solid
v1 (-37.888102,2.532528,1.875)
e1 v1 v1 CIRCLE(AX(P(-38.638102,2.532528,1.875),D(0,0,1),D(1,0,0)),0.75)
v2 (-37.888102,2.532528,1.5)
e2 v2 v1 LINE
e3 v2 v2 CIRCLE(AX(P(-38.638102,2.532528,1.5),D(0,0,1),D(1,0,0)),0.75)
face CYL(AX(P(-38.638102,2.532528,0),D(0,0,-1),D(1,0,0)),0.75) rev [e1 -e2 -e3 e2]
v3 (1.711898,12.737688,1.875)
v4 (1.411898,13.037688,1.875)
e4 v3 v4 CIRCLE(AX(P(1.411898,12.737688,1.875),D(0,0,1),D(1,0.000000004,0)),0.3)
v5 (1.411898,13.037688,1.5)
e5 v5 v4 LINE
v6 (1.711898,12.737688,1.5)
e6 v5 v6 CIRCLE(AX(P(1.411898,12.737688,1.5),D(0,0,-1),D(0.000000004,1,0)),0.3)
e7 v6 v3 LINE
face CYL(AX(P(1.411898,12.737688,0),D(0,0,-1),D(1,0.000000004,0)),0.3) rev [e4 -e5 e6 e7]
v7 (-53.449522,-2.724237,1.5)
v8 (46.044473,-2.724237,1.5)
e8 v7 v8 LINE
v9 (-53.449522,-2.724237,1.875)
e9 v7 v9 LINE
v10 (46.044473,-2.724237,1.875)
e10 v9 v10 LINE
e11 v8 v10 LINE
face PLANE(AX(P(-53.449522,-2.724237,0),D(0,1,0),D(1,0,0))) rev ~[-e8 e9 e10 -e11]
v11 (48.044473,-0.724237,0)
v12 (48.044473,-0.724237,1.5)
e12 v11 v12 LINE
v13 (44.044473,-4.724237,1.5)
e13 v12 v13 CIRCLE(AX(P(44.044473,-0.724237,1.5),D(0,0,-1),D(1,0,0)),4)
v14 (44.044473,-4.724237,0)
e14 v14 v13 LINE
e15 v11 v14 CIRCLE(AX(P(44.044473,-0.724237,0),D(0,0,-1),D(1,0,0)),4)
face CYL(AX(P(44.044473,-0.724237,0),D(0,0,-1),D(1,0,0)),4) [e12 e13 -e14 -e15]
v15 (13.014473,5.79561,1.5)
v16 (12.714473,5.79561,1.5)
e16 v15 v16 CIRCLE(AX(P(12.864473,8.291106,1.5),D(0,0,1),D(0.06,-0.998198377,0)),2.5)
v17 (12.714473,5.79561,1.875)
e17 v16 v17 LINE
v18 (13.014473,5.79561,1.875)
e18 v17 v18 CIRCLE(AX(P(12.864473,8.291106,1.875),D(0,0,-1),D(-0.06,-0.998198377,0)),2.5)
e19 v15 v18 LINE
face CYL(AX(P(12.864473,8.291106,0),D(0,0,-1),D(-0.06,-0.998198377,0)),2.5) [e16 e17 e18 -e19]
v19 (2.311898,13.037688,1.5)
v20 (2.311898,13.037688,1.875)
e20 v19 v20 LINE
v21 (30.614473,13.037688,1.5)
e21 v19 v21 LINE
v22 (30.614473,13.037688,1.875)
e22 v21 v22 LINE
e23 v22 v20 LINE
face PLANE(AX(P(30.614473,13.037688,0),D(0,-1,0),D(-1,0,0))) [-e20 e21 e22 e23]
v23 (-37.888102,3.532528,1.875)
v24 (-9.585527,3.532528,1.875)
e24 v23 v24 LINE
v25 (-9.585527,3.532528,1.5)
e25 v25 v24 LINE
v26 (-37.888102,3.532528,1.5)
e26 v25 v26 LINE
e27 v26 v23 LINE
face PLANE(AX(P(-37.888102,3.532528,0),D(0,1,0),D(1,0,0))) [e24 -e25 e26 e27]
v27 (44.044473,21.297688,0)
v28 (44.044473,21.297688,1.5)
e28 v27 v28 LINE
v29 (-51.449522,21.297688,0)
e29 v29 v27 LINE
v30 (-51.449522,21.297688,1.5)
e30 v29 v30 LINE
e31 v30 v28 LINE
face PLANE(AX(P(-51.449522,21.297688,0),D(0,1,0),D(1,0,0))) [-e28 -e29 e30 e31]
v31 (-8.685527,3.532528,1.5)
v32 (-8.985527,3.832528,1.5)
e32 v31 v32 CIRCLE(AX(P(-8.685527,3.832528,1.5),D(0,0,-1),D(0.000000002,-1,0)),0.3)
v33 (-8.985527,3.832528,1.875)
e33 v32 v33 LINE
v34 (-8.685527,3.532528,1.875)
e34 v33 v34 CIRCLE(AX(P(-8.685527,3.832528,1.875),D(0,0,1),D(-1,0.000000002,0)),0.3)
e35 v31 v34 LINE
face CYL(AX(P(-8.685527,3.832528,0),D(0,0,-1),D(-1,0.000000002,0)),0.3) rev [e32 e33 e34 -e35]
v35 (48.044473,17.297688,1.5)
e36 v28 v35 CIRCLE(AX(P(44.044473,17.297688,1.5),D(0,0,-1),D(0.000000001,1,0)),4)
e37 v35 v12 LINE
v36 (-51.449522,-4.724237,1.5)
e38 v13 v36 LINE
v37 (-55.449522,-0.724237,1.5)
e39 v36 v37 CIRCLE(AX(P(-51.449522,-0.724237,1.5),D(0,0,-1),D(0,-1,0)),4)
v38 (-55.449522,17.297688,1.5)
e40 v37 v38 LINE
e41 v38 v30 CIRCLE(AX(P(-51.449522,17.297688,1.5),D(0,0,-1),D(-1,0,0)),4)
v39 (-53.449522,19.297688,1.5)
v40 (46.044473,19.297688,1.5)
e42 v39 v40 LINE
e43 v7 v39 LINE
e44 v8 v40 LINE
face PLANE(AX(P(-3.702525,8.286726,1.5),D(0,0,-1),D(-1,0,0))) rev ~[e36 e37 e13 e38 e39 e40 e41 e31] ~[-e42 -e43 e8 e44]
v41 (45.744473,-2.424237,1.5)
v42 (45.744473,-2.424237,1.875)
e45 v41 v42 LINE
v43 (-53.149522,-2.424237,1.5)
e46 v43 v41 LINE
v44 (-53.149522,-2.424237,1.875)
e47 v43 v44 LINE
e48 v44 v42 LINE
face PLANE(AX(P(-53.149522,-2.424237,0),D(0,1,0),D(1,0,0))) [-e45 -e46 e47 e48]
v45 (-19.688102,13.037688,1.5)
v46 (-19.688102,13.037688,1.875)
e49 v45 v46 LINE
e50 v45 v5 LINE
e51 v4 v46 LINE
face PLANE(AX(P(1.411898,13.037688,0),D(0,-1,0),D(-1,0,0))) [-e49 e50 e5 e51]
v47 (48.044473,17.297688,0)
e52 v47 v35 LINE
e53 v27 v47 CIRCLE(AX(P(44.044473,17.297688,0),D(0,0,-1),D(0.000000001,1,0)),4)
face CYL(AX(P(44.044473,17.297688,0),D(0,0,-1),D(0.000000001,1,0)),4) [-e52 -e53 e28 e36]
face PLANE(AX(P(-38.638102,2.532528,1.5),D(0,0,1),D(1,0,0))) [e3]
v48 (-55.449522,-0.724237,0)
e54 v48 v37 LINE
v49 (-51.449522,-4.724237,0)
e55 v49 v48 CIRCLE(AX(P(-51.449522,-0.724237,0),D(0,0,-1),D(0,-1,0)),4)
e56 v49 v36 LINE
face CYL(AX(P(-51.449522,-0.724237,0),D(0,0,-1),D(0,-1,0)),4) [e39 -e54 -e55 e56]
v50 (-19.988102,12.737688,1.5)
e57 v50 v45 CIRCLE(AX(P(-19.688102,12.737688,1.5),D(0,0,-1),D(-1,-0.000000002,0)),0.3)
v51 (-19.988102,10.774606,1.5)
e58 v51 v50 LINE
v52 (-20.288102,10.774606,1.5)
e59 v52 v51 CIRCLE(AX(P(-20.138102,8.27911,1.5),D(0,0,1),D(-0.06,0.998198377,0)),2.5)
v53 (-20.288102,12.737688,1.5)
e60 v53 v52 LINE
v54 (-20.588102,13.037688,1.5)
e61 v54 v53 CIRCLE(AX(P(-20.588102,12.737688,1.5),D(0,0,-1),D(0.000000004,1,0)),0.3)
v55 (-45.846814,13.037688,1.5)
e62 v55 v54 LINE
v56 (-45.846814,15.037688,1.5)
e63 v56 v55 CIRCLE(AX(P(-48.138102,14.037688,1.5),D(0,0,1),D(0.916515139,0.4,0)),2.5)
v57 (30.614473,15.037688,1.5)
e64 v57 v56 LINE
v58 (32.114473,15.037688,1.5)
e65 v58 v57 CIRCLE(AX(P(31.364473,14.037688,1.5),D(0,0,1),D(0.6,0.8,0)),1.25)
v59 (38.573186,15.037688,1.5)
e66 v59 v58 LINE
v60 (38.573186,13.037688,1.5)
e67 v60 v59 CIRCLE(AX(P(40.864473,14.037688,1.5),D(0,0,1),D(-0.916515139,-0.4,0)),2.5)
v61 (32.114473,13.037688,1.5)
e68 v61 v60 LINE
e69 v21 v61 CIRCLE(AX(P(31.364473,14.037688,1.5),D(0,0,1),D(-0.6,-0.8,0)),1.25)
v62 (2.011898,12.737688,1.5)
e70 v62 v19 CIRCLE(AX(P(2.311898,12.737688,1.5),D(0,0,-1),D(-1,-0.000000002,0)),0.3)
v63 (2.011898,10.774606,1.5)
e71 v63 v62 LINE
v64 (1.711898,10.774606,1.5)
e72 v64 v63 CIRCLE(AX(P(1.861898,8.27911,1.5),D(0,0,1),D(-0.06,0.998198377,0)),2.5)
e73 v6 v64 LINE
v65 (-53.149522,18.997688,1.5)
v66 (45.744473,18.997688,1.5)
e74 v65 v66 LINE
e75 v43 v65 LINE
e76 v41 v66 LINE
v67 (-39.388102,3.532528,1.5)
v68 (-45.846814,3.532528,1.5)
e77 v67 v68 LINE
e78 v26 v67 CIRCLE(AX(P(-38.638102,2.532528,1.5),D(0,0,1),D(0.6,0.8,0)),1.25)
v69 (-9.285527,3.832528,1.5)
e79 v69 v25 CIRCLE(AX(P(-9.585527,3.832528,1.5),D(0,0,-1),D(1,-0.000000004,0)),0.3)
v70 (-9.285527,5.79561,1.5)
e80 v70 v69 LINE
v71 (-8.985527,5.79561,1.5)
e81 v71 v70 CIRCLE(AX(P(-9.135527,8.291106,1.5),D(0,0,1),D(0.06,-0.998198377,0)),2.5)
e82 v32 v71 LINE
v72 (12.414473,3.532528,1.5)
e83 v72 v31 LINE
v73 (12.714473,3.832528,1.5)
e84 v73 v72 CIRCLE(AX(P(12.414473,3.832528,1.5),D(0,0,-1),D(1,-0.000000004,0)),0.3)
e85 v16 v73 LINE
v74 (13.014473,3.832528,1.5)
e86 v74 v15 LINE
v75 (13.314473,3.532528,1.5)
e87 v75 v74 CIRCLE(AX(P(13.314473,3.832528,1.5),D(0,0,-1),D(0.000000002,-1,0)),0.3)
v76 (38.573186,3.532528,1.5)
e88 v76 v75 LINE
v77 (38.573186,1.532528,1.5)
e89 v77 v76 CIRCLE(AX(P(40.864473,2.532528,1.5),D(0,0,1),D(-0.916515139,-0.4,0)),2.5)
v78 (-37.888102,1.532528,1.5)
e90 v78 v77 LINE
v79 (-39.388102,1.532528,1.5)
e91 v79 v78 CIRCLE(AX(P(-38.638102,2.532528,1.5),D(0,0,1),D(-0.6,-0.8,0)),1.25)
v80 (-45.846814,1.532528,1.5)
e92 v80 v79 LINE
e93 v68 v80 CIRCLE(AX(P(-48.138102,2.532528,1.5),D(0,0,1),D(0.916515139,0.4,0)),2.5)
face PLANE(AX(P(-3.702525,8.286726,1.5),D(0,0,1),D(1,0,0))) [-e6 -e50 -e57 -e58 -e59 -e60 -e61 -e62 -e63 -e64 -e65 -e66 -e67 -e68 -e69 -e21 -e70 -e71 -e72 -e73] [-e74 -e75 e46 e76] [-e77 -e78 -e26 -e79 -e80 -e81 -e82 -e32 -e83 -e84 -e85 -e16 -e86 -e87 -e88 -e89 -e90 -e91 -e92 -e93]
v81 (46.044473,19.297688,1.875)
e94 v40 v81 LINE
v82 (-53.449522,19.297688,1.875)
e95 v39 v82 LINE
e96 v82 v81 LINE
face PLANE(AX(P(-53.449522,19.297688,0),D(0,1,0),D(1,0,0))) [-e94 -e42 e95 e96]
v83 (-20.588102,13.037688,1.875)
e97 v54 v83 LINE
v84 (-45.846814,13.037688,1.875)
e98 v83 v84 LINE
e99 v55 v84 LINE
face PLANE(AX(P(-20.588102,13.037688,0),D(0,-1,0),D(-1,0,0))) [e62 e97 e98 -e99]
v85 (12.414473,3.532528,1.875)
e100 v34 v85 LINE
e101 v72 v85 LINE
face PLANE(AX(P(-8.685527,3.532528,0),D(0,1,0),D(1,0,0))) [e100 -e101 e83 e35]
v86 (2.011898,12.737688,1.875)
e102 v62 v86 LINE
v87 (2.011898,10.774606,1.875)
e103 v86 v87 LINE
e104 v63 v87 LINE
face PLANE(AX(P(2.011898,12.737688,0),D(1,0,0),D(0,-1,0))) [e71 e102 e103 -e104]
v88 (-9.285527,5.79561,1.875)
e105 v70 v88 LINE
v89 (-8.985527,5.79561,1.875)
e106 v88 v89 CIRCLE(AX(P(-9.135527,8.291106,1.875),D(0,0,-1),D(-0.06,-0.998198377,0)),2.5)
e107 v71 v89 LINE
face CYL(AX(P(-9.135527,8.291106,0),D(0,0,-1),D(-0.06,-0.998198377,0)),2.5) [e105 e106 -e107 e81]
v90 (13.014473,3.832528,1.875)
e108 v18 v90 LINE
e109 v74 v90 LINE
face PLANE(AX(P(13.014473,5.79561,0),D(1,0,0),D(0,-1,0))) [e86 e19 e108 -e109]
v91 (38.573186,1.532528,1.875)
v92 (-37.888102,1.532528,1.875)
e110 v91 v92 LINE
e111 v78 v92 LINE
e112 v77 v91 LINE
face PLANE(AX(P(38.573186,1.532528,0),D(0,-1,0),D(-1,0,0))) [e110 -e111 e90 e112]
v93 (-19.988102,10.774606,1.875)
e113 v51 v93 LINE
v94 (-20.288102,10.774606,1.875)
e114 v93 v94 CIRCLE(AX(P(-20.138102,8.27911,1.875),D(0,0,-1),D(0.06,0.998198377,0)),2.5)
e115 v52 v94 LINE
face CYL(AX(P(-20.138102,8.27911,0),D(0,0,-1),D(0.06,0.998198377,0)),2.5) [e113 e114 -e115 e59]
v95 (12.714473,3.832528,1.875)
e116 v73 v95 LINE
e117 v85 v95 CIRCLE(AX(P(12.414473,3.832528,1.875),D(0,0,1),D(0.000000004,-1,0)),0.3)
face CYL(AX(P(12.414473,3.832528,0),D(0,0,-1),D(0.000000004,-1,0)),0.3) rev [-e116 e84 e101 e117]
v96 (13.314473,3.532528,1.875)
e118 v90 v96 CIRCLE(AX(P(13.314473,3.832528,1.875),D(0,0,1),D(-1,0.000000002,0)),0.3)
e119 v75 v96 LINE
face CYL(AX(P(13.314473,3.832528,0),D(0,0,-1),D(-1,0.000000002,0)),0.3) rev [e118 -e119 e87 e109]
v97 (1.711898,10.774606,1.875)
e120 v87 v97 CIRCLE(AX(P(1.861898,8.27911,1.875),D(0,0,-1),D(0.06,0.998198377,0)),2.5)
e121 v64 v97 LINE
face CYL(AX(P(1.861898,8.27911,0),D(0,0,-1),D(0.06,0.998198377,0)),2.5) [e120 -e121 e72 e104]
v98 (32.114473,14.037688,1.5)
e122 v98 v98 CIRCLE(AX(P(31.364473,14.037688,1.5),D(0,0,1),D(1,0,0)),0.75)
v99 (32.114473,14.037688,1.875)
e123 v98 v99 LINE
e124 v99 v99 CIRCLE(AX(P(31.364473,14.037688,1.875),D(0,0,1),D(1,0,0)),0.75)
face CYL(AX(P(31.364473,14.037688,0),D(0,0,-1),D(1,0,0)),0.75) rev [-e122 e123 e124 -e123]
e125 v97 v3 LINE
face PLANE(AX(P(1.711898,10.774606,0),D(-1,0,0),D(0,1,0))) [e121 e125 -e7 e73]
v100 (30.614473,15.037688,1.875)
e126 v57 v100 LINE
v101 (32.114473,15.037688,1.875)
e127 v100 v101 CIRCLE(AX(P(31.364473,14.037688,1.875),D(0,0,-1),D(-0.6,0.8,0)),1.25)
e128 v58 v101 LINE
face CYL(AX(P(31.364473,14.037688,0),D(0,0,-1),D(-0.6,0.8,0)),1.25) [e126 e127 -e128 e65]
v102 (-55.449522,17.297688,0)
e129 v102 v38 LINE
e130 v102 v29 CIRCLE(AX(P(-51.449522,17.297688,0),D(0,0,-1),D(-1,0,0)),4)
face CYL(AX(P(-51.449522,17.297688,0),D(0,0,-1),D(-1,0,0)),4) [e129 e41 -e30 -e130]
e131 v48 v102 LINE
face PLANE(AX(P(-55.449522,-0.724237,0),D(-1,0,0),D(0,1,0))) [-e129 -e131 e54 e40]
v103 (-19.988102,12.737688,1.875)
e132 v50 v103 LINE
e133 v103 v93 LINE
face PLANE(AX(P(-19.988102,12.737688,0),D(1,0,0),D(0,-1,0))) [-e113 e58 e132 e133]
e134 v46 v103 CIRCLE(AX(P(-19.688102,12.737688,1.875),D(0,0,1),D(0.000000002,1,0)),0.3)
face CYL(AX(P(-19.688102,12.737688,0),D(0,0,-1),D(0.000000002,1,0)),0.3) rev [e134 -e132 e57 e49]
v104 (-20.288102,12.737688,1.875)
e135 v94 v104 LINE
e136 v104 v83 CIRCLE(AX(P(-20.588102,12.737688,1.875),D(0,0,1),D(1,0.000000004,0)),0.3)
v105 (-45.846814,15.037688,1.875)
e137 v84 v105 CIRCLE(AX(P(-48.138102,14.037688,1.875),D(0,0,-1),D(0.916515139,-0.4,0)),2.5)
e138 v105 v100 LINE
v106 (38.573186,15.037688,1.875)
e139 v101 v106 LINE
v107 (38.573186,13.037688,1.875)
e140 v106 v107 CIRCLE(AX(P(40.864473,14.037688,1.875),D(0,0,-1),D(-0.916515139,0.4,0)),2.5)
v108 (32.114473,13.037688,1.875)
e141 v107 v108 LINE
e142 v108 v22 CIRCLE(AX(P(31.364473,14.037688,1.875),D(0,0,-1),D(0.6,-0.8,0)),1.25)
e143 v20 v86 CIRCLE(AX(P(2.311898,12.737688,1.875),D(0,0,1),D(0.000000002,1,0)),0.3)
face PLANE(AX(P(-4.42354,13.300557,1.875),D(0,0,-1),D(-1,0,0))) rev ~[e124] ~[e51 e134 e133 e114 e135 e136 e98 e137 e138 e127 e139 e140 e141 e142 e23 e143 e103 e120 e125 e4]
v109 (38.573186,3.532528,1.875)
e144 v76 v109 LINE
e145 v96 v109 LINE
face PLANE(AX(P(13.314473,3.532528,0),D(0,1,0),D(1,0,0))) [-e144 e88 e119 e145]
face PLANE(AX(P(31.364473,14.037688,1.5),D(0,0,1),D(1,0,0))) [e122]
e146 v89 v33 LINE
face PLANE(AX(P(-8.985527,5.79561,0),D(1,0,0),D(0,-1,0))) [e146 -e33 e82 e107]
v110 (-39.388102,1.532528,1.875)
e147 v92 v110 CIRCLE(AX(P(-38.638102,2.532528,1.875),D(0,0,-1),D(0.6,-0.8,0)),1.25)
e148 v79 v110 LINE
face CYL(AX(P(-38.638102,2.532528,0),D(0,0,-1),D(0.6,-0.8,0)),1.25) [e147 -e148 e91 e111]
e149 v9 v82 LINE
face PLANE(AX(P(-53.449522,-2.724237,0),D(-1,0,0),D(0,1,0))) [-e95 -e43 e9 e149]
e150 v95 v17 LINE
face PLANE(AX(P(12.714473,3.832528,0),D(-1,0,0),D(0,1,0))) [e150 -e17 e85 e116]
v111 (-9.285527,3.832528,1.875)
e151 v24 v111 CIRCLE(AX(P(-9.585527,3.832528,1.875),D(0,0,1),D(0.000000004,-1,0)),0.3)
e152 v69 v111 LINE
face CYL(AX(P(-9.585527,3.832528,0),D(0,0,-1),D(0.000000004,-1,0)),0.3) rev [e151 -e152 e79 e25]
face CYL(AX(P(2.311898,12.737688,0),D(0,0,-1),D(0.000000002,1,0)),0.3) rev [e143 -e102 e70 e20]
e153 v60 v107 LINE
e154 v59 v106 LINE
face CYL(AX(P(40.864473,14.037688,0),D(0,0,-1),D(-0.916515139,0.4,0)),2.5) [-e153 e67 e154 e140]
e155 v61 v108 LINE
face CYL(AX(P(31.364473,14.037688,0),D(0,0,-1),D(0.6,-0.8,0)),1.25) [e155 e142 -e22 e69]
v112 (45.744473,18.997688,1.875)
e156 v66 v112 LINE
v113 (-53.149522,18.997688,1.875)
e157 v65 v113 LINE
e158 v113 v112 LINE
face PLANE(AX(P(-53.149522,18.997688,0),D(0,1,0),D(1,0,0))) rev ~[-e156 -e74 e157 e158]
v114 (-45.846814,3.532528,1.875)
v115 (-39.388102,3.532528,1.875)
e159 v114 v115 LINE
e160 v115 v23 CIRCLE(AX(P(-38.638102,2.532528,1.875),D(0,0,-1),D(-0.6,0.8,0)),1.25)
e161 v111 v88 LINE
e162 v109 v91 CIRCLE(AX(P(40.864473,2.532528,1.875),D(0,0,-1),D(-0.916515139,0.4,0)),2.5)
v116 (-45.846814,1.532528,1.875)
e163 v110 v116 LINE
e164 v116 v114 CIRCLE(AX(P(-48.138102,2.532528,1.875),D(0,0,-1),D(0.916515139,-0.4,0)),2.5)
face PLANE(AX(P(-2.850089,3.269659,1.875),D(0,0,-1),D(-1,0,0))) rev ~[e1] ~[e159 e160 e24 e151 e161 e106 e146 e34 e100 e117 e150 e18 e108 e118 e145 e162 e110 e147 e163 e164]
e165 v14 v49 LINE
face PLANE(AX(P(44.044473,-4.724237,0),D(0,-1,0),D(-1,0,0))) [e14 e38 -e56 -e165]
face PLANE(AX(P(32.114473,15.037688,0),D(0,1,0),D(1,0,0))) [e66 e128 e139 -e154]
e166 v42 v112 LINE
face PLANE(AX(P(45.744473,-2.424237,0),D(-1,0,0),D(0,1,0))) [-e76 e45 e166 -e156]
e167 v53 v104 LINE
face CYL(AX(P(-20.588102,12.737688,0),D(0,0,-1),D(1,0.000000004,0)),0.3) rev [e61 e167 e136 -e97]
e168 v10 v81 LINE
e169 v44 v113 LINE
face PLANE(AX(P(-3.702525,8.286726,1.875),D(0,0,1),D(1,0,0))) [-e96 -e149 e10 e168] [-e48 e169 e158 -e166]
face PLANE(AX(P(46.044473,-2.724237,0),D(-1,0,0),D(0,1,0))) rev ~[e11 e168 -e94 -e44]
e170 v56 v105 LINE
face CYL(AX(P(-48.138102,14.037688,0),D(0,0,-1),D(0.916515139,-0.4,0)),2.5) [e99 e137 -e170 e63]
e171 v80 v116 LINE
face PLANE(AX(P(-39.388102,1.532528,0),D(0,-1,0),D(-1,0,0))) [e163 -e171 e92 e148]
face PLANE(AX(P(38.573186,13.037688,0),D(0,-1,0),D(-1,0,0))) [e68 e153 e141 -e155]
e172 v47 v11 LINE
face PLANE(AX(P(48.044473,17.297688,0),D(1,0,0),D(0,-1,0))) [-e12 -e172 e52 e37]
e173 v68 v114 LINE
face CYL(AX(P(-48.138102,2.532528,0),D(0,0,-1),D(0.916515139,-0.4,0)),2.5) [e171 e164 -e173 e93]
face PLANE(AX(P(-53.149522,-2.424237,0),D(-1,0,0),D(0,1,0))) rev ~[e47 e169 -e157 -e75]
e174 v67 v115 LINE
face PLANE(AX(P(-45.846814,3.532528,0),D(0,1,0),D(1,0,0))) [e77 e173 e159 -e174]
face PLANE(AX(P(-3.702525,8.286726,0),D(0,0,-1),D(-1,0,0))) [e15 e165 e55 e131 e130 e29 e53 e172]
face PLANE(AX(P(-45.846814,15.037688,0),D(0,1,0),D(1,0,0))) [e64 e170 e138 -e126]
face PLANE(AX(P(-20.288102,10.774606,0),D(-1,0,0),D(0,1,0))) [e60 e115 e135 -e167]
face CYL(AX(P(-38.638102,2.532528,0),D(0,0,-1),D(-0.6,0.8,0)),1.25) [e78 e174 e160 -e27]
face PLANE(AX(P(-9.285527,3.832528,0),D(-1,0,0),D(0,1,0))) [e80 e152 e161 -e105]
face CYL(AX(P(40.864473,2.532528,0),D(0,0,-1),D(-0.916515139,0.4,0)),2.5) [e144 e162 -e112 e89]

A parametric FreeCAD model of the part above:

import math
import FreeCAD as App
import Part
import Sketcher

V = App.Vector
Q = App.Units.Quantity

doc = App.newDocument("Part")
body = doc.addObject("PartDesign::Body", "Body")

sketch1 = doc.addObject("Sketcher::SketchObject", "Sketch")
body.addObject(sketch1)
sketch1.AttachmentSupport = (doc.XY_Plane, [""])
sketch1.MapMode = "FlatFace"
sketch1.addGeometry([
    Part.LineSegment(V(-53.15, 19, 0), V(-53.15, -2.42, 0)),
    Part.LineSegment(V(-53.15, -2.42, 0), V(45.74, -2.42, 0)),
    Part.LineSegment(V(45.74, -2.42, 0), V(45.74, 19, 0)),
    Part.LineSegment(V(45.74, 19, 0), V(-53.15, 19, 0)),
    Part.LineSegment(V(13.01, 5.8, 0), V(13.01, 3.83, 0)),
    Part.ArcOfCircle(Part.Circle(V(13.31, 3.83, 0), V(0, 0, 1), 0.3), math.radians(180), math.radians(270)),
    Part.LineSegment(V(13.31, 3.53, 0), V(38.57, 3.53, 0)),
    Part.ArcOfCircle(Part.Circle(V(40.86, 2.53, 0), V(0, 0, 1), 2.5), math.radians(-156), math.radians(156)),
    Part.LineSegment(V(38.57, 1.53, 0), V(-37.89, 1.53, 0)),
    Part.ArcOfCircle(Part.Circle(V(-38.64, 2.53, 0), V(0, 0, 1), 1.25), math.radians(-127), math.radians(-53)),
    Part.LineSegment(V(-39.39, 1.53, 0), V(-45.85, 1.53, 0)),
    Part.ArcOfCircle(Part.Circle(V(-48.14, 2.53, 0), V(0, 0, 1), 2.5), math.radians(24), math.radians(336)),
    Part.LineSegment(V(-45.85, 3.53, 0), V(-39.39, 3.53, 0)),
    Part.ArcOfCircle(Part.Circle(V(-38.64, 2.53, 0), V(0, 0, 1), 1.25), math.radians(53), math.radians(127)),
    Part.LineSegment(V(-37.89, 3.53, 0), V(-9.59, 3.53, 0)),
    Part.ArcOfCircle(Part.Circle(V(-9.59, 3.83, 0), V(0, 0, 1), 0.3), math.radians(-90), math.radians(0)),
    Part.LineSegment(V(-9.29, 3.83, 0), V(-9.29, 5.8, 0)),
    Part.ArcOfCircle(Part.Circle(V(-9.14, 8.29, 0), V(0, 0, 1), 2.5), math.radians(-87), math.radians(267)),
    Part.LineSegment(V(-8.99, 5.8, 0), V(-8.99, 3.83, 0)),
    Part.ArcOfCircle(Part.Circle(V(-8.69, 3.83, 0), V(0, 0, 1), 0.3), math.radians(180), math.radians(270)),
    Part.LineSegment(V(-8.69, 3.53, 0), V(12.41, 3.53, 0)),
    Part.ArcOfCircle(Part.Circle(V(12.41, 3.83, 0), V(0, 0, 1), 0.3), math.radians(-90), math.radians(0)),
    Part.LineSegment(V(12.71, 3.83, 0), V(12.71, 5.8, 0)),
    Part.ArcOfCircle(Part.Circle(V(12.86, 8.29, 0), V(0, 0, 1), 2.5), math.radians(-87), math.radians(267)),
    Part.ArcOfCircle(Part.Circle(V(2.31, 12.74, 0), V(0, 0, 1), 0.3), math.radians(90), math.radians(180)),
    Part.LineSegment(V(2.01, 12.74, 0), V(2.01, 10.77, 0)),
    Part.ArcOfCircle(Part.Circle(V(1.86, 8.28, 0), V(0, 0, 1), 2.5), math.radians(93), math.radians(447)),
    Part.LineSegment(V(1.71, 10.77, 0), V(1.71, 12.74, 0)),
    Part.ArcOfCircle(Part.Circle(V(1.41, 12.74, 0), V(0, 0, 1), 0.3), math.radians(0), math.radians(90)),
    Part.LineSegment(V(1.41, 13.04, 0), V(-19.69, 13.04, 0)),
    Part.ArcOfCircle(Part.Circle(V(-19.69, 12.74, 0), V(0, 0, 1), 0.3), math.radians(90), math.radians(180)),
    Part.LineSegment(V(-19.99, 12.74, 0), V(-19.99, 10.77, 0)),
    Part.ArcOfCircle(Part.Circle(V(-20.14, 8.28, 0), V(0, 0, 1), 2.5), math.radians(93), math.radians(447)),
    Part.LineSegment(V(-20.29, 10.77, 0), V(-20.29, 12.74, 0)),
    Part.ArcOfCircle(Part.Circle(V(-20.59, 12.74, 0), V(0, 0, 1), 0.3), math.radians(0), math.radians(90)),
    Part.LineSegment(V(-20.59, 13.04, 0), V(-45.85, 13.04, 0)),
    Part.ArcOfCircle(Part.Circle(V(-48.14, 14.04, 0), V(0, 0, 1), 2.5), math.radians(24), math.radians(336)),
    Part.LineSegment(V(-45.85, 15.04, 0), V(30.61, 15.04, 0)),
    Part.ArcOfCircle(Part.Circle(V(31.36, 14.04, 0), V(0, 0, 1), 1.25), math.radians(53), math.radians(127)),
    Part.LineSegment(V(32.11, 15.04, 0), V(38.57, 15.04, 0)),
    Part.ArcOfCircle(Part.Circle(V(40.86, 14.04, 0), V(0, 0, 1), 2.5), math.radians(-156), math.radians(156)),
    Part.LineSegment(V(38.57, 13.04, 0), V(32.11, 13.04, 0)),
    Part.ArcOfCircle(Part.Circle(V(31.36, 14.04, 0), V(0, 0, 1), 1.25), math.radians(-127), math.radians(-53)),
    Part.LineSegment(V(30.61, 13.04, 0), V(2.31, 13.04, 0)),
], False)
sketch1.addConstraint([
    Sketcher.Constraint("Coincident", 0, 2, 1, 1),
    Sketcher.Constraint("Coincident", 1, 2, 2, 1),
    Sketcher.Constraint("Coincident", 2, 2, 3, 1),
    Sketcher.Constraint("Coincident", 3, 2, 0, 1),
    Sketcher.Constraint("Tangent", 4, 2, 5, 1),
    Sketcher.Constraint("Tangent", 5, 2, 6, 1),
    Sketcher.Constraint("Coincident", 6, 2, 7, 2),
    Sketcher.Constraint("Coincident", 7, 1, 8, 1),
    Sketcher.Constraint("Coincident", 8, 2, 9, 2),
    Sketcher.Constraint("Coincident", 9, 1, 10, 1),
    Sketcher.Constraint("Coincident", 10, 2, 11, 2),
    Sketcher.Constraint("Coincident", 11, 1, 12, 1),
    Sketcher.Constraint("Coincident", 12, 2, 13, 2),
    Sketcher.Constraint("Coincident", 13, 1, 14, 1),
    Sketcher.Constraint("Tangent", 14, 2, 15, 1),
    Sketcher.Constraint("Tangent", 15, 2, 16, 1),
    Sketcher.Constraint("Coincident", 16, 2, 17, 2),
    Sketcher.Constraint("Coincident", 17, 1, 18, 1),
    Sketcher.Constraint("Tangent", 18, 2, 19, 1),
    Sketcher.Constraint("Tangent", 19, 2, 20, 1),
    Sketcher.Constraint("Tangent", 20, 2, 21, 1),
    Sketcher.Constraint("Tangent", 21, 2, 22, 1),
    Sketcher.Constraint("Coincident", 22, 2, 23, 2),
    Sketcher.Constraint("Coincident", 23, 1, 4, 1),
    Sketcher.Constraint("Tangent", 24, 2, 25, 1),
    Sketcher.Constraint("Coincident", 25, 2, 26, 2),
    Sketcher.Constraint("Coincident", 26, 1, 27, 1),
    Sketcher.Constraint("Tangent", 27, 2, 28, 1),
    Sketcher.Constraint("Tangent", 28, 2, 29, 1),
    Sketcher.Constraint("Tangent", 29, 2, 30, 1),
    Sketcher.Constraint("Tangent", 30, 2, 31, 1),
    Sketcher.Constraint("Coincident", 31, 2, 32, 2),
    Sketcher.Constraint("Coincident", 32, 1, 33, 1),
    Sketcher.Constraint("Tangent", 33, 2, 34, 1),
    Sketcher.Constraint("Tangent", 34, 2, 35, 1),
    Sketcher.Constraint("Coincident", 35, 2, 36, 2),
    Sketcher.Constraint("Coincident", 36, 1, 37, 1),
    Sketcher.Constraint("Coincident", 37, 2, 38, 2),
    Sketcher.Constraint("Coincident", 38, 1, 39, 1),
    Sketcher.Constraint("Coincident", 39, 2, 40, 2),
    Sketcher.Constraint("Coincident", 40, 1, 41, 1),
    Sketcher.Constraint("Coincident", 41, 2, 42, 2),
    Sketcher.Constraint("Coincident", 42, 1, 43, 1),
    Sketcher.Constraint("Tangent", 43, 2, 24, 1),
    Sketcher.Constraint("Vertical", 0),
    Sketcher.Constraint("Horizontal", 1),
    Sketcher.Constraint("Vertical", 2),
    Sketcher.Constraint("Horizontal", 3),
    Sketcher.Constraint("Vertical", 4),
    Sketcher.Constraint("Horizontal", 6),
    Sketcher.Constraint("Horizontal", 8),
    Sketcher.Constraint("Horizontal", 10),
    Sketcher.Constraint("Horizontal", 12),
    Sketcher.Constraint("Horizontal", 14),
    Sketcher.Constraint("Vertical", 16),
    Sketcher.Constraint("Vertical", 18),
    Sketcher.Constraint("Horizontal", 20),
    Sketcher.Constraint("Vertical", 22),
    Sketcher.Constraint("Vertical", 25),
    Sketcher.Constraint("Vertical", 27),
    Sketcher.Constraint("Horizontal", 29),
    Sketcher.Constraint("Vertical", 31),
    Sketcher.Constraint("Vertical", 33),
    Sketcher.Constraint("Horizontal", 35),
    Sketcher.Constraint("Horizontal", 37),
    Sketcher.Constraint("Horizontal", 39),
    Sketcher.Constraint("Horizontal", 41),
    Sketcher.Constraint("Horizontal", 43),
    Sketcher.Constraint("Coincident", 13, 3, 9, 3),
    Sketcher.Constraint("Coincident", 42, 3, 38, 3),
    Sketcher.Constraint("Equal", 7, 11),
    Sketcher.Constraint("Equal", 9, 13),
    Sketcher.Constraint("Equal", 5, 15),
    Sketcher.Constraint("Equal", 11, 17),
    Sketcher.Constraint("Equal", 15, 19),
    Sketcher.Constraint("Equal", 19, 21),
    Sketcher.Constraint("Equal", 17, 23),
    Sketcher.Constraint("Equal", 21, 24),
    Sketcher.Constraint("Equal", 23, 26),
    Sketcher.Constraint("Equal", 24, 28),
    Sketcher.Constraint("Equal", 28, 30),
    Sketcher.Constraint("Equal", 26, 32),
    Sketcher.Constraint("Equal", 30, 34),
    Sketcher.Constraint("Equal", 32, 36),
    Sketcher.Constraint("Equal", 13, 38),
    Sketcher.Constraint("Equal", 36, 40),
    Sketcher.Constraint("Equal", 38, 42),
    Sketcher.Constraint("Horizontal", 7, 3, 9, 3),
    Sketcher.Constraint("Horizontal", 9, 3, 11, 3),
    Sketcher.Constraint("Horizontal", 5, 3, 15, 3),
    Sketcher.Constraint("Horizontal", 15, 3, 19, 3),
    Sketcher.Constraint("Horizontal", 17, 3, 23, 3),
    Sketcher.Constraint("Horizontal", 24, 3, 28, 3),
    Sketcher.Constraint("Horizontal", 26, 3, 32, 3),
    Sketcher.Constraint("Horizontal", 30, 3, 34, 3),
    Sketcher.Constraint("Horizontal", 36, 3, 38, 3),
    Sketcher.Constraint("Horizontal", 38, 3, 40, 3),
    Sketcher.Constraint("Horizontal", 8, 2, 9, 1),
    Sketcher.Constraint("Horizontal", 6, 2, 11, 1),
    Sketcher.Constraint("Horizontal", 16, 2, 17, 1),
    Sketcher.Constraint("Horizontal", 17, 1, 22, 2),
    Sketcher.Constraint("Horizontal", 22, 2, 23, 1),
    Sketcher.Constraint("Horizontal", 25, 2, 26, 1),
    Sketcher.Constraint("Horizontal", 26, 1, 31, 2),
    Sketcher.Constraint("Horizontal", 31, 2, 32, 1),
    Sketcher.Constraint("Horizontal", 37, 2, 38, 1),
    Sketcher.Constraint("Horizontal", 35, 2, 40, 1),
    Sketcher.Constraint("Vertical", 11, 3, 36, 3),
    Sketcher.Constraint("Vertical", 7, 3, 40, 3),
    Sketcher.Constraint("Vertical", 6, 2, 7, 1),
    Sketcher.Constraint("Vertical", 11, 1, 35, 2),
    Sketcher.Constraint("Vertical", 35, 2, 36, 1),
    Sketcher.Constraint("Equal", 20, 29),
    Sketcher.Constraint("Equal", 6, 35),
    Sketcher.Constraint("Equal", 8, 37),
    Sketcher.Constraint("Equal", 14, 43),
    Sketcher.Constraint("Equal", 22, 25),
    Sketcher.Constraint("Radius", 5, Q("0.3 mm")),
    Sketcher.Constraint("Radius", 7, Q("2.5 mm")),
    Sketcher.Constraint("Radius", 9, Q("1.25 mm")),
    Sketcher.Constraint("DistanceX", 20, 1, 20, 2, Q("21.1 mm")),
    Sketcher.Constraint("DistanceX", 1, 1, 1, 2, Q("98.893996 mm")),
    Sketcher.Constraint("DistanceX", 6, 1, 6, 2, Q("25.258712 mm")),
    Sketcher.Constraint("DistanceX", 8, 2, 8, 1, Q("76.461288 mm")),
    Sketcher.Constraint("DistanceX", 10, 2, 10, 1, Q("6.458712 mm")),
    Sketcher.Constraint("DistanceX", 14, 1, 14, 2, Q("28.302576 mm")),
    Sketcher.Constraint("DistanceY", 0, 2, 0, 1, Q("21.421925 mm")),
    Sketcher.Constraint("DistanceY", 4, 2, 4, 1, Q("1.963082 mm")),
    Sketcher.Constraint("DistanceY", -1, 1, 24, 3, Q("12.737688 mm")),
    Sketcher.Constraint("DistanceY", -1, 1, 36, 3, Q("14.037688 mm")),
    Sketcher.Constraint("DistanceY", -1, 1, 2, 2, Q("18.997688 mm")),
    Sketcher.Constraint("DistanceY", -1, 1, 16, 2, Q("5.79561 mm")),
    Sketcher.Constraint("DistanceX", -1, 1, 5, 3, Q("13.314473 mm")),
    Sketcher.Constraint("DistanceX", 0, 2, -1, 1, Q("53.149522 mm")),
])
pad1 = doc.addObject("PartDesign::Pad", "Pad")
body.addObject(pad1)
pad1.Profile = sketch1
pad1.Length = 1.5
body2 = doc.addObject("PartDesign::Body", "Body001")

sketch2 = doc.addObject("Sketcher::SketchObject", "Sketch001")
body2.addObject(sketch2)
sketch2.AttachmentSupport = (doc.getObject("XY_Plane001"), [""])
sketch2.MapMode = "FlatFace"
sketch2.addGeometry(Part.Circle(V(31.4, 14, 0), V(0, 0, 1), 0.8), False)
sketch2.addConstraint([
    Sketcher.Constraint("Diameter", 0, Q("1.5 mm")),
    Sketcher.Constraint("DistanceY", -1, 1, 0, 3, Q("14.037688 mm")),
    Sketcher.Constraint("DistanceX", -1, 1, 0, 3, Q("31.364473 mm")),
])
pad2 = doc.addObject("PartDesign::Pad", "Pad001")
body2.addObject(pad2)
pad2.Profile = sketch2
pad2.Length = 1.5
body3 = doc.addObject("PartDesign::Body", "Body002")

sketch3 = doc.addObject("Sketcher::SketchObject", "Sketch002")
body3.addObject(sketch3)
sketch3.AttachmentSupport = (doc.getObject("XY_Plane002"), [""])
sketch3.MapMode = "FlatFace"
sketch3.addGeometry(Part.Circle(V(-38.6, 2.5, 0), V(0, 0, 1), 0.8), False)
sketch3.addConstraint([
    Sketcher.Constraint("Diameter", 0, Q("1.5 mm")),
    Sketcher.Constraint("DistanceX", 0, 3, -1, 1, Q("38.638102 mm")),
    Sketcher.Constraint("DistanceY", -1, 1, 0, 3, Q("2.532528 mm")),
])
pad3 = doc.addObject("PartDesign::Pad", "Pad002")
body3.addObject(pad3)
pad3.Profile = sketch3
pad3.Length = 1.5
body.AllowCompound = True
doc.recompute()

boolean = doc.addObject("PartDesign::Boolean", "Boolean")
body.addObject(boolean)
boolean.Type = "Fuse"
boolean.addObjects([body2])
doc.recompute()

boolean2 = doc.addObject("PartDesign::Boolean", "Boolean001")
body.addObject(boolean2)
boolean2.Type = "Fuse"
boolean2.addObjects([body3])

sketch4 = doc.addObject("Sketcher::SketchObject", "Sketch003")
body.addObject(sketch4)
sketch4.AttachmentSupport = (doc.XY_Plane, [""])
sketch4.MapMode = "FlatFace"
sketch4.addGeometry([
    Part.LineSegment(V(2.01, 10.77, 0), V(2.01, 12.74, 0)),
    Part.ArcOfCircle(Part.Circle(V(2.31, 12.74, 0), V(0, 0, 1), 0.3), math.radians(90), math.radians(180)),
    Part.LineSegment(V(2.31, 13.04, 0), V(30.61, 13.04, 0)),
    Part.ArcOfCircle(Part.Circle(V(31.36, 14.04, 0), V(0, 0, 1), 1.25), math.radians(-127), math.radians(-53)),
    Part.LineSegment(V(32.11, 13.04, 0), V(38.57, 13.04, 0)),
    Part.ArcOfCircle(Part.Circle(V(40.86, 14.04, 0), V(0, 0, 1), 2.5), math.radians(-156), math.radians(156)),
    Part.LineSegment(V(38.57, 15.04, 0), V(32.11, 15.04, 0)),
    Part.ArcOfCircle(Part.Circle(V(31.36, 14.04, 0), V(0, 0, 1), 1.25), math.radians(53), math.radians(127)),
    Part.LineSegment(V(30.61, 15.04, 0), V(-45.85, 15.04, 0)),
    Part.ArcOfCircle(Part.Circle(V(-48.14, 14.04, 0), V(0, 0, 1), 2.5), math.radians(24), math.radians(336)),
    Part.LineSegment(V(-45.85, 13.04, 0), V(-20.59, 13.04, 0)),
    Part.ArcOfCircle(Part.Circle(V(-20.59, 12.74, 0), V(0, 0, 1), 0.3), math.radians(0), math.radians(90)),
    Part.LineSegment(V(-20.29, 12.74, 0), V(-20.29, 10.77, 0)),
    Part.ArcOfCircle(Part.Circle(V(-20.14, 8.28, 0), V(0, 0, 1), 2.5), math.radians(93), math.radians(447)),
    Part.LineSegment(V(-19.99, 10.77, 0), V(-19.99, 12.74, 0)),
    Part.ArcOfCircle(Part.Circle(V(-19.69, 12.74, 0), V(0, 0, 1), 0.3), math.radians(90), math.radians(180)),
    Part.LineSegment(V(-19.69, 13.04, 0), V(1.41, 13.04, 0)),
    Part.ArcOfCircle(Part.Circle(V(1.41, 12.74, 0), V(0, 0, 1), 0.3), math.radians(0), math.radians(90)),
    Part.LineSegment(V(1.71, 12.74, 0), V(1.71, 10.77, 0)),
    Part.ArcOfCircle(Part.Circle(V(1.86, 8.28, 0), V(0, 0, 1), 2.5), math.radians(93), math.radians(447)),
    Part.Circle(V(31.36, 14.04, 0), V(0, 0, 1), 0.75),
    Part.ArcOfCircle(Part.Circle(V(13.31, 3.83, 0), V(0, 0, 1), 0.3), math.radians(180), math.radians(270)),
    Part.LineSegment(V(13.01, 3.83, 0), V(13.01, 5.8, 0)),
    Part.ArcOfCircle(Part.Circle(V(12.86, 8.29, 0), V(0, 0, 1), 2.5), math.radians(-87), math.radians(267)),
    Part.LineSegment(V(12.71, 5.8, 0), V(12.71, 3.83, 0)),
    Part.ArcOfCircle(Part.Circle(V(12.41, 3.83, 0), V(0, 0, 1), 0.3), math.radians(-90), math.radians(0)),
    Part.LineSegment(V(12.41, 3.53, 0), V(-8.69, 3.53, 0)),
    Part.ArcOfCircle(Part.Circle(V(-8.69, 3.83, 0), V(0, 0, 1), 0.3), math.radians(180), math.radians(270)),
    Part.LineSegment(V(-8.99, 3.83, 0), V(-8.99, 5.8, 0)),
    Part.ArcOfCircle(Part.Circle(V(-9.14, 8.29, 0), V(0, 0, 1), 2.5), math.radians(-87), math.radians(267)),
    Part.LineSegment(V(-9.29, 5.8, 0), V(-9.29, 3.83, 0)),
    Part.ArcOfCircle(Part.Circle(V(-9.59, 3.83, 0), V(0, 0, 1), 0.3), math.radians(-90), math.radians(0)),
    Part.LineSegment(V(-9.59, 3.53, 0), V(-37.89, 3.53, 0)),
    Part.ArcOfCircle(Part.Circle(V(-38.64, 2.53, 0), V(0, 0, 1), 1.25), math.radians(53), math.radians(127)),
    Part.LineSegment(V(-39.39, 3.53, 0), V(-45.85, 3.53, 0)),
    Part.ArcOfCircle(Part.Circle(V(-48.14, 2.53, 0), V(0, 0, 1), 2.5), math.radians(24), math.radians(336)),
    Part.LineSegment(V(-45.85, 1.53, 0), V(-39.39, 1.53, 0)),
    Part.ArcOfCircle(Part.Circle(V(-38.64, 2.53, 0), V(0, 0, 1), 1.25), math.radians(-127), math.radians(-53)),
    Part.LineSegment(V(-37.89, 1.53, 0), V(38.57, 1.53, 0)),
    Part.ArcOfCircle(Part.Circle(V(40.86, 2.53, 0), V(0, 0, 1), 2.5), math.radians(-156), math.radians(156)),
    Part.LineSegment(V(38.57, 3.53, 0), V(13.31, 3.53, 0)),
    Part.Circle(V(-38.64, 2.53, 0), V(0, 0, 1), 0.75),
], False)
sketch4.addConstraint([
    Sketcher.Constraint("Tangent", 0, 2, 1, 2),
    Sketcher.Constraint("Tangent", 1, 1, 2, 1),
    Sketcher.Constraint("Coincident", 2, 2, 3, 1),
    Sketcher.Constraint("Coincident", 3, 2, 4, 1),
    Sketcher.Constraint("Coincident", 4, 2, 5, 1),
    Sketcher.Constraint("Coincident", 5, 2, 6, 1),
    Sketcher.Constraint("Coincident", 6, 2, 7, 1),
    Sketcher.Constraint("Coincident", 7, 2, 8, 1),
    Sketcher.Constraint("Coincident", 8, 2, 9, 1),
    Sketcher.Constraint("Coincident", 9, 2, 10, 1),
    Sketcher.Constraint("Tangent", 10, 2, 11, 2),
    Sketcher.Constraint("Tangent", 11, 1, 12, 1),
    Sketcher.Constraint("Coincident", 12, 2, 13, 1),
    Sketcher.Constraint("Coincident", 13, 2, 14, 1),
    Sketcher.Constraint("Tangent", 14, 2, 15, 2),
    Sketcher.Constraint("Tangent", 15, 1, 16, 1),
    Sketcher.Constraint("Tangent", 16, 2, 17, 2),
    Sketcher.Constraint("Tangent", 17, 1, 18, 1),
    Sketcher.Constraint("Coincident", 18, 2, 19, 1),
    Sketcher.Constraint("Coincident", 19, 2, 0, 1),
    Sketcher.Constraint("Tangent", 21, 1, 22, 1),
    Sketcher.Constraint("Coincident", 22, 2, 23, 1),
    Sketcher.Constraint("Coincident", 23, 2, 24, 1),
    Sketcher.Constraint("Tangent", 24, 2, 25, 2),
    Sketcher.Constraint("Tangent", 25, 1, 26, 1),
    Sketcher.Constraint("Tangent", 26, 2, 27, 2),
    Sketcher.Constraint("Tangent", 27, 1, 28, 1),
    Sketcher.Constraint("Coincident", 28, 2, 29, 1),
    Sketcher.Constraint("Coincident", 29, 2, 30, 1),
    Sketcher.Constraint("Tangent", 30, 2, 31, 2),
    Sketcher.Constraint("Tangent", 31, 1, 32, 1),
    Sketcher.Constraint("Coincident", 32, 2, 33, 1),
    Sketcher.Constraint("Coincident", 33, 2, 34, 1),
    Sketcher.Constraint("Coincident", 34, 2, 35, 1),
    Sketcher.Constraint("Coincident", 35, 2, 36, 1),
    Sketcher.Constraint("Coincident", 36, 2, 37, 1),
    Sketcher.Constraint("Coincident", 37, 2, 38, 1),
    Sketcher.Constraint("Coincident", 38, 2, 39, 1),
    Sketcher.Constraint("Coincident", 39, 2, 40, 1),
    Sketcher.Constraint("Tangent", 40, 2, 21, 2),
    Sketcher.Constraint("Vertical", 0),
    Sketcher.Constraint("Horizontal", 2),
    Sketcher.Constraint("Horizontal", 4),
    Sketcher.Constraint("Horizontal", 6),
    Sketcher.Constraint("Horizontal", 8),
    Sketcher.Constraint("Horizontal", 10),
    Sketcher.Constraint("Vertical", 12),
    Sketcher.Constraint("Vertical", 14),
    Sketcher.Constraint("Horizontal", 16),
    Sketcher.Constraint("Vertical", 18),
    Sketcher.Constraint("Vertical", 22),
    Sketcher.Constraint("Vertical", 24),
    Sketcher.Constraint("Horizontal", 26),
    Sketcher.Constraint("Vertical", 28),
    Sketcher.Constraint("Vertical", 30),
    Sketcher.Constraint("Horizontal", 32),
    Sketcher.Constraint("Horizontal", 34),
    Sketcher.Constraint("Horizontal", 36),
    Sketcher.Constraint("Horizontal", 38),
    Sketcher.Constraint("Horizontal", 40),
    Sketcher.Constraint("Coincident", 7, 3, 3, 3),
    Sketcher.Constraint("Coincident", 20, 3, 3, 3),
    Sketcher.Constraint("Coincident", 37, 3, 33, 3),
    Sketcher.Constraint("Coincident", 41, 3, 33, 3),
    Sketcher.Constraint("Equal", 3, 7),
    Sketcher.Constraint("Equal", 5, 9),
    Sketcher.Constraint("Equal", 1, 11),
    Sketcher.Constraint("Equal", 9, 13),
    Sketcher.Constraint("Equal", 11, 15),
    Sketcher.Constraint("Equal", 15, 17),
    Sketcher.Constraint("Equal", 13, 19),
    Sketcher.Constraint("Equal", 17, 21),
    Sketcher.Constraint("Equal", 19, 23),
    Sketcher.Constraint("Equal", 21, 25),
    Sketcher.Constraint("Equal", 25, 27),
    Sketcher.Constraint("Equal", 23, 29),
    Sketcher.Constraint("Equal", 27, 31),
    Sketcher.Constraint("Equal", 7, 33),
    Sketcher.Constraint("Equal", 29, 35),
    Sketcher.Constraint("Equal", 33, 37),
    Sketcher.Constraint("Equal", 35, 39),
    Sketcher.Constraint("Equal", 20, 41),
    Sketcher.Constraint("Horizontal", 3, 3, 5, 3),
    Sketcher.Constraint("Horizontal", 7, 3, 9, 3),
    Sketcher.Constraint("Horizontal", 1, 3, 11, 3),
    Sketcher.Constraint("Horizontal", 11, 3, 15, 3),
    Sketcher.Constraint("Horizontal", 13, 3, 19, 3),
    Sketcher.Constraint("Horizontal", 21, 3, 25, 3),
    Sketcher.Constraint("Horizontal", 23, 3, 29, 3),
    Sketcher.Constraint("Horizontal", 27, 3, 31, 3),
    Sketcher.Constraint("Horizontal", 33, 3, 35, 3),
    Sketcher.Constraint("Horizontal", 37, 3, 39, 3),
    Sketcher.Constraint("Horizontal", 2, 2, 3, 2),
    Sketcher.Constraint("Horizontal", 6, 2, 7, 2),
    Sketcher.Constraint("Horizontal", 12, 2, 13, 2),
    Sketcher.Constraint("Horizontal", 13, 2, 18, 2),
    Sketcher.Constraint("Horizontal", 18, 2, 19, 2),
    Sketcher.Constraint("Horizontal", 22, 2, 23, 2),
    Sketcher.Constraint("Horizontal", 23, 2, 28, 2),
    Sketcher.Constraint("Horizontal", 28, 2, 29, 2),
    Sketcher.Constraint("Horizontal", 32, 2, 33, 2),
    Sketcher.Constraint("Horizontal", 36, 2, 37, 2),
    Sketcher.Constraint("Vertical", 9, 3, 35, 3),
    Sketcher.Constraint("Vertical", 5, 3, 39, 3),
    Sketcher.Constraint("Vertical", 4, 2, 5, 2),
    Sketcher.Constraint("Vertical", 9, 2, 34, 2),
    Sketcher.Constraint("Vertical", 34, 2, 35, 2),
    Sketcher.Constraint("Equal", 16, 26),
    Sketcher.Constraint("Equal", 2, 32),
    Sketcher.Constraint("Equal", 6, 34),
    Sketcher.Constraint("Equal", 10, 40),
    Sketcher.Constraint("Equal", 18, 22),
    Sketcher.Constraint("Diameter", 20, Q("1.5 mm")),
    Sketcher.Constraint("Radius", 1, Q("0.3 mm")),
    Sketcher.Constraint("Radius", 5, Q("2.5 mm")),
    Sketcher.Constraint("Radius", 3, Q("1.25 mm")),
    Sketcher.Constraint("DistanceX", 16, 1, 16, 2, Q("21.1 mm")),
    Sketcher.Constraint("DistanceX", 2, 1, 2, 2, Q("28.302576 mm")),
    Sketcher.Constraint("DistanceX", 4, 1, 4, 2, Q("6.458712 mm")),
    Sketcher.Constraint("DistanceX", 8, 2, 8, 1, Q("76.461288 mm")),
    Sketcher.Constraint("DistanceX", 10, 1, 10, 2, Q("25.258712 mm")),
    Sketcher.Constraint("DistanceY", 0, 1, 0, 2, Q("1.963082 mm")),
    Sketcher.Constraint("DistanceY", -1, 1, 1, 3, Q("12.737688 mm")),
    Sketcher.Constraint("DistanceY", -1, 1, 3, 3, Q("14.037688 mm")),
    Sketcher.Constraint("DistanceY", -1, 1, 22, 2, Q("5.79561 mm")),
    Sketcher.Constraint("DistanceX", -1, 1, 1, 3, Q("2.311898 mm")),
])
pad4 = doc.addObject("PartDesign::Pad", "Pad003")
body.addObject(pad4)
pad4.Profile = sketch4
pad4.Length = 1.875

sketch5 = doc.addObject("Sketcher::SketchObject", "Sketch004")
body.addObject(sketch5)
sketch5.AttachmentSupport = (doc.XY_Plane, [""])
sketch5.MapMode = "FlatFace"
sketch5.addGeometry([
    Part.LineSegment(V(-53, 19, 0), V(-53, -3, 0)),
    Part.LineSegment(V(-53, -3, 0), V(46, -3, 0)),
    Part.LineSegment(V(46, -3, 0), V(46, 19, 0)),
    Part.LineSegment(V(46, 19, 0), V(-53, 19, 0)),
    Part.LineSegment(V(46, -2, 0), V(-53, -2, 0)),
    Part.LineSegment(V(-53, -2, 0), V(-53, 19, 0)),
    Part.LineSegment(V(-53, 19, 0), V(46, 19, 0)),
    Part.LineSegment(V(46, 19, 0), V(46, -2, 0)),
], False)
sketch5.addConstraint([
    Sketcher.Constraint("Coincident", 0, 2, 1, 1),
    Sketcher.Constraint("Coincident", 1, 2, 2, 1),
    Sketcher.Constraint("Coincident", 2, 2, 3, 1),
    Sketcher.Constraint("Coincident", 3, 2, 0, 1),
    Sketcher.Constraint("Coincident", 4, 2, 5, 1),
    Sketcher.Constraint("Coincident", 5, 2, 6, 1),
    Sketcher.Constraint("Coincident", 6, 2, 7, 1),
    Sketcher.Constraint("Coincident", 7, 2, 4, 1),
    Sketcher.Constraint("Vertical", 0),
    Sketcher.Constraint("Horizontal", 1),
    Sketcher.Constraint("Vertical", 2),
    Sketcher.Constraint("Horizontal", 3),
    Sketcher.Constraint("Horizontal", 4),
    Sketcher.Constraint("Vertical", 5),
    Sketcher.Constraint("Horizontal", 6),
    Sketcher.Constraint("Vertical", 7),
    Sketcher.Constraint("DistanceX", 0, 2, 4, 2, Q("0.3 mm")),
    Sketcher.Constraint("DistanceY", 0, 2, 4, 2, Q("0.3 mm")),
    Sketcher.Constraint("DistanceY", 5, 2, 3, 2, Q("0.3 mm")),
    Sketcher.Constraint("DistanceX", 6, 2, 2, 2, Q("0.3 mm")),
    Sketcher.Constraint("DistanceX", 1, 1, 1, 2, Q("99.493996 mm")),
    Sketcher.Constraint("DistanceY", 0, 2, 0, 1, Q("22.021925 mm")),
    Sketcher.Constraint("DistanceY", -1, 1, 2, 2, Q("19.297688 mm")),
    Sketcher.Constraint("DistanceX", 0, 2, -1, 1, Q("53.449522 mm")),
])
pad5 = doc.addObject("PartDesign::Pad", "Pad004")
body.addObject(pad5)
pad5.Profile = sketch5
pad5.Length = 1.875

sketch6 = doc.addObject("Sketcher::SketchObject", "Sketch005")
body.addObject(sketch6)
sketch6.AttachmentSupport = (doc.XY_Plane, [""])
sketch6.MapMode = "FlatFace"
sketch6.addGeometry([
    Part.ArcOfCircle(Part.Circle(V(-51.4, 17.3, 0), V(0, 0, 1), 4), math.radians(90), math.radians(180)),
    Part.LineSegment(V(-55.4, 17.3, 0), V(-55.4, -0.7, 0)),
    Part.ArcOfCircle(Part.Circle(V(-51.4, -0.7, 0), V(0, 0, 1), 4), math.radians(180), math.radians(270)),
    Part.LineSegment(V(-51.4, -4.7, 0), V(44, -4.7, 0)),
    Part.ArcOfCircle(Part.Circle(V(44, -0.7, 0), V(0, 0, 1), 4), math.radians(-90), math.radians(0)),
    Part.LineSegment(V(48, -0.7, 0), V(48, 17.3, 0)),
    Part.ArcOfCircle(Part.Circle(V(44, 17.3, 0), V(0, 0, 1), 4), math.radians(0), math.radians(90)),
    Part.LineSegment(V(44, 21.3, 0), V(-51.4, 21.3, 0)),
    Part.LineSegment(V(-53.4, -2.7, 0), V(-53.4, 19.3, 0)),
    Part.LineSegment(V(-53.4, 19.3, 0), V(46, 19.3, 0)),
    Part.LineSegment(V(46, 19.3, 0), V(46, -2.7, 0)),
    Part.LineSegment(V(46, -2.7, 0), V(-53.4, -2.7, 0)),
], False)
sketch6.addConstraint([
    Sketcher.Constraint("Tangent", 0, 2, 1, 1),
    Sketcher.Constraint("Tangent", 1, 2, 2, 1),
    Sketcher.Constraint("Tangent", 2, 2, 3, 1),
    Sketcher.Constraint("Tangent", 3, 2, 4, 1),
    Sketcher.Constraint("Tangent", 4, 2, 5, 1),
    Sketcher.Constraint("Tangent", 5, 2, 6, 1),
    Sketcher.Constraint("Tangent", 6, 2, 7, 1),
    Sketcher.Constraint("Tangent", 7, 2, 0, 1),
    Sketcher.Constraint("Coincident", 8, 2, 9, 1),
    Sketcher.Constraint("Coincident", 9, 2, 10, 1),
    Sketcher.Constraint("Coincident", 10, 2, 11, 1),
    Sketcher.Constraint("Coincident", 11, 2, 8, 1),
    Sketcher.Constraint("Vertical", 1),
    Sketcher.Constraint("Horizontal", 3),
    Sketcher.Constraint("Vertical", 5),
    Sketcher.Constraint("Horizontal", 7),
    Sketcher.Constraint("Vertical", 8),
    Sketcher.Constraint("Horizontal", 9),
    Sketcher.Constraint("Vertical", 10),
    Sketcher.Constraint("Horizontal", 11),
    Sketcher.Constraint("Equal", 0, 2),
    Sketcher.Constraint("Equal", 2, 4),
    Sketcher.Constraint("Equal", 4, 6),
    Sketcher.Constraint("Radius", 0, Q("4 mm")),
    Sketcher.Constraint("DistanceX", 0, 2, 8, 2, Q("2 mm")),
    Sketcher.Constraint("DistanceY", 0, 2, 8, 2, Q("2 mm")),
    Sketcher.Constraint("DistanceX", 9, 2, 5, 2, Q("2 mm")),
    Sketcher.Constraint("DistanceY", 3, 2, 10, 2, Q("2 mm")),
    Sketcher.Constraint("DistanceX", 3, 1, 3, 2, Q("95.493996 mm")),
    Sketcher.Constraint("DistanceY", 1, 2, 1, 1, Q("18.021925 mm")),
    Sketcher.Constraint("DistanceY", -1, 1, 0, 3, Q("17.297688 mm")),
    Sketcher.Constraint("DistanceX", 0, 3, -1, 1, Q("51.449522 mm")),
])
pad6 = doc.addObject("PartDesign::Pad", "Pad005")
body.addObject(pad6)
pad6.Profile = sketch6
pad6.Length = 1.5

doc.recompute()
